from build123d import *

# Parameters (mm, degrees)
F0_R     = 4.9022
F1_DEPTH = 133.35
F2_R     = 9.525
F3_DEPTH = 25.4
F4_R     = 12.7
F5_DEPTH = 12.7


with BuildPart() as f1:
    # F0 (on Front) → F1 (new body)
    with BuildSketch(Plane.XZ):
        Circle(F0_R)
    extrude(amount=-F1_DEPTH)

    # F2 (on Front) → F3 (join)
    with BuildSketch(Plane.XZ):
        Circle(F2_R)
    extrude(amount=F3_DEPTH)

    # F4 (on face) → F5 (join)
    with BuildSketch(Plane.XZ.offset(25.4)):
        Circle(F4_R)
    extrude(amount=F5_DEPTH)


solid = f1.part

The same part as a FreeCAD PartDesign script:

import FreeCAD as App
import Part
import Sketcher
from FreeCAD import Vector
Q = App.Units.Quantity

doc = App.newDocument("Part")
params = doc.addObject("Spreadsheet::Sheet", "Params")
for row, (alias, value) in enumerate([
    ("sketch1_diameter", "0.386 in"),
    ("pad1_length", "5.25 in"),
    ("sketch2_diameter", "0.75 in"),
    ("pad2_length", "1 in"),
    ("sketch3_diameter", "1 in"),
    ("pad3_length", "0.5 in"),
], start=1):
    params.set(f"A{row}", alias)
    params.set(f"B{row}", "=" + value)
    params.setAlias(f"B{row}", alias)

body = doc.addObject("PartDesign::Body", "Body")

# Sketch on XZ plane
sketch1 = doc.addObject("Sketcher::SketchObject", "Sketch")
body.addObject(sketch1)
sketch1.AttachmentSupport = (doc.XZ_Plane, [""])
sketch1.MapMode = "FlatFace"
sketch1.addGeometry(Part.Circle(Vector(0, 0, 0), Vector(0, 0, 1), 4.9), False)
sketch1.addConstraint(Sketcher.Constraint("Coincident", 0, 3, -1, 1))
sketch1.addConstraint(Sketcher.Constraint("Diameter", 0, Q("0.386 in")))
sketch1.setExpression("Constraints[1]", "Params.sketch1_diameter")
pad1 = doc.addObject("PartDesign::Pad", "Pad")
body.addObject(pad1)
pad1.Profile = sketch1
pad1.setExpression("Length", "Params.pad1_length")
pad1.Reversed = True

# Sketch on XZ plane
sketch2 = doc.addObject("Sketcher::SketchObject", "Sketch001")
body.addObject(sketch2)
sketch2.AttachmentSupport = (doc.XZ_Plane, [""])
sketch2.MapMode = "FlatFace"
sketch2.addGeometry(Part.Circle(Vector(0, 0, 0), Vector(0, 0, 1), 10), False)
sketch2.addConstraint(Sketcher.Constraint("Coincident", 0, 3, -1, 1))
sketch2.addConstraint(Sketcher.Constraint("Diameter", 0, Q("0.75 in")))
sketch2.setExpression("Constraints[1]", "Params.sketch2_diameter")
pad2 = doc.addObject("PartDesign::Pad", "Pad001")
body.addObject(pad2)
pad2.Profile = sketch2
pad2.setExpression("Length", "Params.pad2_length")

# Sketch on XZ plane
sketch3 = doc.addObject("Sketcher::SketchObject", "Sketch002")
body.addObject(sketch3)
sketch3.AttachmentSupport = (doc.XZ_Plane, [""])
sketch3.MapMode = "FlatFace"
sketch3.AttachmentOffset = App.Placement(Vector(0, 0, 1 * 25.4), App.Rotation())
sketch3.addGeometry(Part.Circle(Vector(0, 0, 0), Vector(0, 0, 1), 13), False)
sketch3.addConstraint(Sketcher.Constraint("Coincident", 0, 3, -1, 1))
sketch3.addConstraint(Sketcher.Constraint("Diameter", 0, Q("1 in")))
sketch3.setExpression("Constraints[1]", "Params.sketch3_diameter")
pad3 = doc.addObject("PartDesign::Pad", "Pad002")
body.addObject(pad3)
pad3.Profile = sketch3
pad3.setExpression("Length", "Params.pad3_length")

doc.recompute()
